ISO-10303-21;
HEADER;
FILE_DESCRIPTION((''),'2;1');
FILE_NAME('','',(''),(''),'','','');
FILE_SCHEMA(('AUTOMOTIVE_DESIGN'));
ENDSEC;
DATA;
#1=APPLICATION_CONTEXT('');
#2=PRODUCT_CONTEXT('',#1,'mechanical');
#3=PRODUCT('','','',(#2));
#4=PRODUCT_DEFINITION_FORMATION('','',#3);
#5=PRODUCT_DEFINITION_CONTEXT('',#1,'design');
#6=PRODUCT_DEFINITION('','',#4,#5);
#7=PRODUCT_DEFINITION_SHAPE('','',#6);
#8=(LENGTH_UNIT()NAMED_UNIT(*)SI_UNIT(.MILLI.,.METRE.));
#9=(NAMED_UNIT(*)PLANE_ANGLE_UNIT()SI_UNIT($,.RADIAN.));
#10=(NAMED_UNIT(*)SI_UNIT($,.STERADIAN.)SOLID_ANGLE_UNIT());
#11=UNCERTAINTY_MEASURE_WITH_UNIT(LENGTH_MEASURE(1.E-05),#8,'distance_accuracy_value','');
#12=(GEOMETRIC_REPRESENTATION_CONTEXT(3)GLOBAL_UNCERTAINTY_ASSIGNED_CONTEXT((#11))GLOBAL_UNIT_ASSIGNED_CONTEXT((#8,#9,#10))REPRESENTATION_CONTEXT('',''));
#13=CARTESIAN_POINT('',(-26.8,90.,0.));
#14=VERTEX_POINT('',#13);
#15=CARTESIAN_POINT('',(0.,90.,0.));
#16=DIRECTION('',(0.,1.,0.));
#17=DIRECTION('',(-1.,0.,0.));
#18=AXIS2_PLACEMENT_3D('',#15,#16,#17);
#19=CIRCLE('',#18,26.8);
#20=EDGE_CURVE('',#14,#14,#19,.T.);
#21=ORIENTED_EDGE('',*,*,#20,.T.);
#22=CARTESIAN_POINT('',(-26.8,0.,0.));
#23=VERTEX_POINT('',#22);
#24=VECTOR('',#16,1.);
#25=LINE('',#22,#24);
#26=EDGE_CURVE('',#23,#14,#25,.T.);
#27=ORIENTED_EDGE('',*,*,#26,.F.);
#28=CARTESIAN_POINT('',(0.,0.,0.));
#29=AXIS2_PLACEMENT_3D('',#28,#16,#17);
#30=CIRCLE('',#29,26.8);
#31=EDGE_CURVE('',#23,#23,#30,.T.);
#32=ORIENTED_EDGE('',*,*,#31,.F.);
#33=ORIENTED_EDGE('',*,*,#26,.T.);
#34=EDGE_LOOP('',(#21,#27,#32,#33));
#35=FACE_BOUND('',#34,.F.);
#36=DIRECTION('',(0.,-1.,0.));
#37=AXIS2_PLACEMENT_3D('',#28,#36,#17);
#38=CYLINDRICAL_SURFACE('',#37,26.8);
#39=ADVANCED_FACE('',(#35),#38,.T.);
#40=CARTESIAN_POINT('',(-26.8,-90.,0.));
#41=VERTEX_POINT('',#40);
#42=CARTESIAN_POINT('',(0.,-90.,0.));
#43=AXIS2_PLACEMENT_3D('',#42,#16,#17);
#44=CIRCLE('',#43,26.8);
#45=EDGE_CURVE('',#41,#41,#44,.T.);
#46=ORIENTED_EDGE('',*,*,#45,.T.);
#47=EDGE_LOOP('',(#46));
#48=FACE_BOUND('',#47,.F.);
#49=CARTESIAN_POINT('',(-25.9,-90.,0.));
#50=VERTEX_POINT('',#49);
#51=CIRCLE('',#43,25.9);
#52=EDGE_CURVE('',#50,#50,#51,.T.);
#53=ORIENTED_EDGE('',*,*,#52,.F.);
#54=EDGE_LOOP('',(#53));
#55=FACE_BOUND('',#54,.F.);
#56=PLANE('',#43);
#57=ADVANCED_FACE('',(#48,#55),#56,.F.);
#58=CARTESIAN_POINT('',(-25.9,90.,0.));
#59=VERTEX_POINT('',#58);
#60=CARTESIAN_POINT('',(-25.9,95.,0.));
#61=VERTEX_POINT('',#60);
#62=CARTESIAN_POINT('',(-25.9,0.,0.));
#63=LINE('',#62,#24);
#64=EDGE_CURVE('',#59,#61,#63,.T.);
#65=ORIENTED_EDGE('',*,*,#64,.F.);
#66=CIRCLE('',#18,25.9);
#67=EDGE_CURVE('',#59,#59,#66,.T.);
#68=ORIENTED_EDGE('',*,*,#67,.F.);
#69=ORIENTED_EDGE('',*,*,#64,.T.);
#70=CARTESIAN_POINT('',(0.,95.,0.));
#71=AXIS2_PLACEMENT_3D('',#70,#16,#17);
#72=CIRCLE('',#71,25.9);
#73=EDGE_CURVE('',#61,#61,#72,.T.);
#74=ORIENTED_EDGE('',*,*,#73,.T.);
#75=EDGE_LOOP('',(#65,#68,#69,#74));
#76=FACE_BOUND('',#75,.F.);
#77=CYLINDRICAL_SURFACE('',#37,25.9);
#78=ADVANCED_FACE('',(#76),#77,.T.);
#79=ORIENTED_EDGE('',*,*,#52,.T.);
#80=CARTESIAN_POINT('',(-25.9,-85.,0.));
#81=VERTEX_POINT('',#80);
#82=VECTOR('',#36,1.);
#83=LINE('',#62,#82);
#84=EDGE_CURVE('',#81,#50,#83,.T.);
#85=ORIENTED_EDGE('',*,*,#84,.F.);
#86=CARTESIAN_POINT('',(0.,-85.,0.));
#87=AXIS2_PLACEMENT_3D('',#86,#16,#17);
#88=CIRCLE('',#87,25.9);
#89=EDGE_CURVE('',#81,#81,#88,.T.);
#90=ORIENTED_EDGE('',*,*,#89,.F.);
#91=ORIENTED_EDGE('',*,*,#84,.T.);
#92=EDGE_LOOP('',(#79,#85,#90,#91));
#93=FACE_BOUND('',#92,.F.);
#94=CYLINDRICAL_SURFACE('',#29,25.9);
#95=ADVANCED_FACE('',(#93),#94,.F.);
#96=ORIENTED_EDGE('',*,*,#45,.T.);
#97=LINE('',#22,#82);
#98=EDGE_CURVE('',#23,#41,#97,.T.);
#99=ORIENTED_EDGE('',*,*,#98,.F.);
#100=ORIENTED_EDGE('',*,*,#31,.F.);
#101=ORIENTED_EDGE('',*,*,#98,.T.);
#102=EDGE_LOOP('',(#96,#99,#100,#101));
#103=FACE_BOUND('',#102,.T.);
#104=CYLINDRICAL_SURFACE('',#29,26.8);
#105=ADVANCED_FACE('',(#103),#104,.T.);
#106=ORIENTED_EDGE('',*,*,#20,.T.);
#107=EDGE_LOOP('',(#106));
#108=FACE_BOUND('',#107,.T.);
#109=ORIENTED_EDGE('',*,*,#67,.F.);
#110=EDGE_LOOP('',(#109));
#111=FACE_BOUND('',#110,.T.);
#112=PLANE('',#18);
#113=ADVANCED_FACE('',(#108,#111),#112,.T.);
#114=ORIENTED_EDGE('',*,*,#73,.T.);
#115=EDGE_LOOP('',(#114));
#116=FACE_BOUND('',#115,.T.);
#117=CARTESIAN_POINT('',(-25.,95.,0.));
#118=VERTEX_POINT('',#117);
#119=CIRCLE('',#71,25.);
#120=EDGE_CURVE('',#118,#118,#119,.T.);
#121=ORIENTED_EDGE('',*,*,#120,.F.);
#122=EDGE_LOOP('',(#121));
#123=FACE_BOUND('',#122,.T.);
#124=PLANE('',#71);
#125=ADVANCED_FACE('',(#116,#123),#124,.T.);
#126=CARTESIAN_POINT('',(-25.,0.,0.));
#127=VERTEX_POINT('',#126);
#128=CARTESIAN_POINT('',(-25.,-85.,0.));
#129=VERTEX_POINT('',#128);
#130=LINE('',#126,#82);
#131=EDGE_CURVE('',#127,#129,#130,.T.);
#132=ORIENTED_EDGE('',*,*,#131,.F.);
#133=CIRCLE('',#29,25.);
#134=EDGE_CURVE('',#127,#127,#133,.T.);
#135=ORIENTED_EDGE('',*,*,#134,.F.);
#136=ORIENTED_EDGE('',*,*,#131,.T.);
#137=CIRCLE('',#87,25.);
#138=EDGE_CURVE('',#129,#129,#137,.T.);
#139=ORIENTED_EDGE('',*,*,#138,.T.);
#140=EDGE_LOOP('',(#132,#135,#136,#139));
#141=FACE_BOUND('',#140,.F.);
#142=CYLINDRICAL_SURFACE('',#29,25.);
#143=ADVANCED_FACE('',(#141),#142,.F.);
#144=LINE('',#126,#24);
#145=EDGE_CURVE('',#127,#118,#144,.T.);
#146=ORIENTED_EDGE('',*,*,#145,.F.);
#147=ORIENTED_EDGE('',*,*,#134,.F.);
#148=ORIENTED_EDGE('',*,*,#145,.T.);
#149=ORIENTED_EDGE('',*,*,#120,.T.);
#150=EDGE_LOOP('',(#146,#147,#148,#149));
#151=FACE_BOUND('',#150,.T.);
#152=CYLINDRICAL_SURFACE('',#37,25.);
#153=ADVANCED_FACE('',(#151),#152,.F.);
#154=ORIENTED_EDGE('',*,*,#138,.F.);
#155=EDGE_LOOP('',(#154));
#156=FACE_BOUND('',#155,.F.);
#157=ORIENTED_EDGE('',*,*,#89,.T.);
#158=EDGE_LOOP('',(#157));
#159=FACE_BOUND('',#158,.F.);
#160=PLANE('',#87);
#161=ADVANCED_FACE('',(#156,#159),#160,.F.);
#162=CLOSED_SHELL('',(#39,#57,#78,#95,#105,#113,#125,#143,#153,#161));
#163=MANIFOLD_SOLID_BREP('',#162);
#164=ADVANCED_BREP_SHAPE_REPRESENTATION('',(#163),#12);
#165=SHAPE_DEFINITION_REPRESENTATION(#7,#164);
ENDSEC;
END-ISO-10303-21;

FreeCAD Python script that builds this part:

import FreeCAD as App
import Part
import Sketcher
Q = App.Units.Quantity

doc = App.newDocument("Part")
body = doc.addObject("PartDesign::Body", "Body")

sketch1 = body.newObject("Sketcher::SketchObject", "Sketch")
sketch1.AttachmentSupport = (doc.getObject("XZ_Plane"), [""])
sketch1.MapMode = "FlatFace"
sketch1.addGeometry([
    Part.Circle(App.Vector(0, 0, 0), App.Vector(0, 0, 1), 26),
    Part.Circle(App.Vector(0, 0, 0), App.Vector(0, 0, 1), 25),
], False)
sketch1.addConstraint([
    Sketcher.Constraint("Coincident", 0, 3, -1, 1),
    Sketcher.Constraint("Coincident", 1, 3, -1, 1),
    Sketcher.Constraint("Diameter", 1, Q("50 mm")),
    Sketcher.Constraint("Diameter", 0, Q("51.8 mm")),
])
pad1 = body.newObject("PartDesign::Pad", "Pad")
pad1.Profile = sketch1
pad1.Type = "TwoLengths"
pad1.Length = 95
pad1.Length2 = 85
pad1.Reversed = True

sketch2 = body.newObject("Sketcher::SketchObject", "Sketch001")
sketch2.AttachmentSupport = (doc.getObject("XZ_Plane"), [""])
sketch2.MapMode = "FlatFace"
sketch2.addGeometry([
    Part.Circle(App.Vector(0, 0, 0), App.Vector(0, 0, 1), 27),
    Part.Circle(App.Vector(0, 0, 0), App.Vector(0, 0, 1), 26),
], False)
sketch2.addConstraint([
    Sketcher.Constraint("Coincident", 0, 3, -1, 1),
    Sketcher.Constraint("Coincident", 1, 3, -1, 1),
    Sketcher.Constraint("Diameter", 0, Q("53.6 mm")),
    Sketcher.Constraint("Diameter", 1, Q("51.8 mm")),
])
pad2 = body.newObject("PartDesign::Pad", "Pad001")
pad2.Profile = sketch2
pad2.Length = 180
pad2.Midplane = True

doc.recompute()
